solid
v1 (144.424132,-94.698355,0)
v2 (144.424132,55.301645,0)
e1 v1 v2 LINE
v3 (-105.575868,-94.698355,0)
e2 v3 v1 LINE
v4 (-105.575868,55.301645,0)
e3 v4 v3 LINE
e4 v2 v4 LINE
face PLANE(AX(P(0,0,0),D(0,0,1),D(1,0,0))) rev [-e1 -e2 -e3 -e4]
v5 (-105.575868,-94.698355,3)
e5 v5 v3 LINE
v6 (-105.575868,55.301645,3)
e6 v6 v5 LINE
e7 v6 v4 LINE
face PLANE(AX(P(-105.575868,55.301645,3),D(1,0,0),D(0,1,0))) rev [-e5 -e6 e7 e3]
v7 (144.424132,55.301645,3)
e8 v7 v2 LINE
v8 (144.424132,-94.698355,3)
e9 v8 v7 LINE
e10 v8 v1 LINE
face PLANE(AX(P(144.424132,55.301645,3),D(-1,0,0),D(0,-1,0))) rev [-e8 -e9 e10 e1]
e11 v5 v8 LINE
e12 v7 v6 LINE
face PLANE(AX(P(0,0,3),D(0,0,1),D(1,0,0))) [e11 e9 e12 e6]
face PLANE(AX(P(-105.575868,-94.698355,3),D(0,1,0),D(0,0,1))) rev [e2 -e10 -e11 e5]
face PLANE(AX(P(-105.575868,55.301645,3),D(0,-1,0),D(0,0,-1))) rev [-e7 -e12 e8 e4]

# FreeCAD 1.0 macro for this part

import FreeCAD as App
import Part
import Sketcher
Q = App.Units.Quantity

doc = App.newDocument("Part")
body = doc.addObject("PartDesign::Body", "Body")

sketch1 = doc.addObject("Sketcher::SketchObject", "Sketch")
body.addObject(sketch1)
sketch1.AttachmentSupport = (doc.XY_Plane, [""])
sketch1.MapMode = "FlatFace"
sketch1.addGeometry([
    Part.LineSegment(App.Vector(-106, 55, 0), App.Vector(-106, -95, 0)),
    Part.LineSegment(App.Vector(-106, -95, 0), App.Vector(144, -95, 0)),
    Part.LineSegment(App.Vector(144, -95, 0), App.Vector(144, 55, 0)),
    Part.LineSegment(App.Vector(144, 55, 0), App.Vector(-106, 55, 0)),
], False)
sketch1.addConstraint([
    Sketcher.Constraint("Coincident", 0, 2, 1, 1),
    Sketcher.Constraint("Coincident", 1, 2, 2, 1),
    Sketcher.Constraint("Coincident", 2, 2, 3, 1),
    Sketcher.Constraint("Coincident", 3, 2, 0, 1),
    Sketcher.Constraint("Vertical", 0),
    Sketcher.Constraint("Horizontal", 1),
    Sketcher.Constraint("Vertical", 2),
    Sketcher.Constraint("Horizontal", 3),
    Sketcher.Constraint("DistanceX", 1, 1, 1, 2, Q("250 mm")),
    Sketcher.Constraint("DistanceY", 0, 2, 0, 1, Q("150 mm")),
    Sketcher.Constraint("DistanceX", 0, 2, -1, 1, Q("105.575868 mm")),
    Sketcher.Constraint("DistanceY", 0, 2, -1, 1, Q("94.698355 mm")),
])
pad1 = doc.addObject("PartDesign::Pad", "Pad")
body.addObject(pad1)
pad1.Profile = sketch1
pad1.Length = 3

doc.recompute()
